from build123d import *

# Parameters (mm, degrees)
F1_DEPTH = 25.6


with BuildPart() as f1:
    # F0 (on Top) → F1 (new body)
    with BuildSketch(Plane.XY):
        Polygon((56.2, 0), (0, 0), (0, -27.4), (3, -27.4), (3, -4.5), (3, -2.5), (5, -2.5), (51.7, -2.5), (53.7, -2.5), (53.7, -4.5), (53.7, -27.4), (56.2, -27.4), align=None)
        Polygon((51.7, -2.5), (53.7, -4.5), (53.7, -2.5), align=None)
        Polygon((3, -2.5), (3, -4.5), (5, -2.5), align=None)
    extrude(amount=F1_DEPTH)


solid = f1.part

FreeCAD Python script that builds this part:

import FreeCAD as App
import Part
import Sketcher

V = App.Vector


def add_polygon(sketch, points):
    """Adds a closed chain of lines whose ends are joined by coincident constraints."""
    first, n = sketch.GeometryCount, len(points)
    for a, b in zip(points, points[1:] + points[:1]):
        sketch.addGeometry(Part.LineSegment(App.Vector(*a, 0), App.Vector(*b, 0)), False)
    for i in range(n):
        sketch.addConstraint(Sketcher.Constraint("Coincident", first + i, 2, first + (i + 1) % n, 1))

doc = App.newDocument("Part")
body = doc.addObject("PartDesign::Body", "Body")

sketch1 = body.newObject("Sketcher::SketchObject", "Sketch")
sketch1.AttachmentSupport = (doc.getObject("XY_Plane"), [""])
sketch1.MapMode = "FlatFace"
add_polygon(sketch1, [(56.2, 0), (0, 0), (0, -27.4), (3, -27.4), (3, -4.5), (5, -2.5), (51.7, -2.5), (53.7, -4.5), (53.7, -27.4), (56.2, -27.4)])
sketch1.addConstraint(Sketcher.Constraint("Horizontal", 0))
sketch1.addConstraint(Sketcher.Constraint("Vertical", 1))
sketch1.addConstraint(Sketcher.Constraint("Horizontal", 2))
sketch1.addConstraint(Sketcher.Constraint("Vertical", 3))
sketch1.addConstraint(Sketcher.Constraint("Horizontal", 5))
sketch1.addConstraint(Sketcher.Constraint("Vertical", 7))
sketch1.addConstraint(Sketcher.Constraint("Horizontal", 8))
sketch1.addConstraint(Sketcher.Constraint("Vertical", 9))
sketch1.addConstraint(Sketcher.Constraint("Coincident", 0, 2, -1, 1))
sketch1.addConstraint(Sketcher.Constraint("Perpendicular", 4, 6))
sketch1.addConstraint(Sketcher.Constraint("Horizontal", 3, 2, 6, 2))
sketch1.addConstraint(Sketcher.Constraint("Horizontal", 2, 2, 7, 2))
sketch1.addConstraint(Sketcher.Constraint("Equal", 4, 6))
sketch1.addConstraint(Sketcher.Constraint("DistanceX", 2, 1, 2, 2, 3.0))
sketch1.addConstraint(Sketcher.Constraint("DistanceX", 0, 2, 0, 1, 56.2))
sketch1.addConstraint(Sketcher.Constraint("DistanceX", 5, 1, 5, 2, 46.7))
sketch1.addConstraint(Sketcher.Constraint("DistanceX", 8, 1, 8, 2, 2.5))
sketch1.addConstraint(Sketcher.Constraint("DistanceY", 1, 2, 1, 1, 27.4))
sketch1.addConstraint(Sketcher.Constraint("DistanceY", 3, 1, 3, 2, 22.9))
pad1 = body.newObject("PartDesign::Pad", "Pad")
pad1.Profile = sketch1
pad1.Length = 25.6

doc.recompute()
